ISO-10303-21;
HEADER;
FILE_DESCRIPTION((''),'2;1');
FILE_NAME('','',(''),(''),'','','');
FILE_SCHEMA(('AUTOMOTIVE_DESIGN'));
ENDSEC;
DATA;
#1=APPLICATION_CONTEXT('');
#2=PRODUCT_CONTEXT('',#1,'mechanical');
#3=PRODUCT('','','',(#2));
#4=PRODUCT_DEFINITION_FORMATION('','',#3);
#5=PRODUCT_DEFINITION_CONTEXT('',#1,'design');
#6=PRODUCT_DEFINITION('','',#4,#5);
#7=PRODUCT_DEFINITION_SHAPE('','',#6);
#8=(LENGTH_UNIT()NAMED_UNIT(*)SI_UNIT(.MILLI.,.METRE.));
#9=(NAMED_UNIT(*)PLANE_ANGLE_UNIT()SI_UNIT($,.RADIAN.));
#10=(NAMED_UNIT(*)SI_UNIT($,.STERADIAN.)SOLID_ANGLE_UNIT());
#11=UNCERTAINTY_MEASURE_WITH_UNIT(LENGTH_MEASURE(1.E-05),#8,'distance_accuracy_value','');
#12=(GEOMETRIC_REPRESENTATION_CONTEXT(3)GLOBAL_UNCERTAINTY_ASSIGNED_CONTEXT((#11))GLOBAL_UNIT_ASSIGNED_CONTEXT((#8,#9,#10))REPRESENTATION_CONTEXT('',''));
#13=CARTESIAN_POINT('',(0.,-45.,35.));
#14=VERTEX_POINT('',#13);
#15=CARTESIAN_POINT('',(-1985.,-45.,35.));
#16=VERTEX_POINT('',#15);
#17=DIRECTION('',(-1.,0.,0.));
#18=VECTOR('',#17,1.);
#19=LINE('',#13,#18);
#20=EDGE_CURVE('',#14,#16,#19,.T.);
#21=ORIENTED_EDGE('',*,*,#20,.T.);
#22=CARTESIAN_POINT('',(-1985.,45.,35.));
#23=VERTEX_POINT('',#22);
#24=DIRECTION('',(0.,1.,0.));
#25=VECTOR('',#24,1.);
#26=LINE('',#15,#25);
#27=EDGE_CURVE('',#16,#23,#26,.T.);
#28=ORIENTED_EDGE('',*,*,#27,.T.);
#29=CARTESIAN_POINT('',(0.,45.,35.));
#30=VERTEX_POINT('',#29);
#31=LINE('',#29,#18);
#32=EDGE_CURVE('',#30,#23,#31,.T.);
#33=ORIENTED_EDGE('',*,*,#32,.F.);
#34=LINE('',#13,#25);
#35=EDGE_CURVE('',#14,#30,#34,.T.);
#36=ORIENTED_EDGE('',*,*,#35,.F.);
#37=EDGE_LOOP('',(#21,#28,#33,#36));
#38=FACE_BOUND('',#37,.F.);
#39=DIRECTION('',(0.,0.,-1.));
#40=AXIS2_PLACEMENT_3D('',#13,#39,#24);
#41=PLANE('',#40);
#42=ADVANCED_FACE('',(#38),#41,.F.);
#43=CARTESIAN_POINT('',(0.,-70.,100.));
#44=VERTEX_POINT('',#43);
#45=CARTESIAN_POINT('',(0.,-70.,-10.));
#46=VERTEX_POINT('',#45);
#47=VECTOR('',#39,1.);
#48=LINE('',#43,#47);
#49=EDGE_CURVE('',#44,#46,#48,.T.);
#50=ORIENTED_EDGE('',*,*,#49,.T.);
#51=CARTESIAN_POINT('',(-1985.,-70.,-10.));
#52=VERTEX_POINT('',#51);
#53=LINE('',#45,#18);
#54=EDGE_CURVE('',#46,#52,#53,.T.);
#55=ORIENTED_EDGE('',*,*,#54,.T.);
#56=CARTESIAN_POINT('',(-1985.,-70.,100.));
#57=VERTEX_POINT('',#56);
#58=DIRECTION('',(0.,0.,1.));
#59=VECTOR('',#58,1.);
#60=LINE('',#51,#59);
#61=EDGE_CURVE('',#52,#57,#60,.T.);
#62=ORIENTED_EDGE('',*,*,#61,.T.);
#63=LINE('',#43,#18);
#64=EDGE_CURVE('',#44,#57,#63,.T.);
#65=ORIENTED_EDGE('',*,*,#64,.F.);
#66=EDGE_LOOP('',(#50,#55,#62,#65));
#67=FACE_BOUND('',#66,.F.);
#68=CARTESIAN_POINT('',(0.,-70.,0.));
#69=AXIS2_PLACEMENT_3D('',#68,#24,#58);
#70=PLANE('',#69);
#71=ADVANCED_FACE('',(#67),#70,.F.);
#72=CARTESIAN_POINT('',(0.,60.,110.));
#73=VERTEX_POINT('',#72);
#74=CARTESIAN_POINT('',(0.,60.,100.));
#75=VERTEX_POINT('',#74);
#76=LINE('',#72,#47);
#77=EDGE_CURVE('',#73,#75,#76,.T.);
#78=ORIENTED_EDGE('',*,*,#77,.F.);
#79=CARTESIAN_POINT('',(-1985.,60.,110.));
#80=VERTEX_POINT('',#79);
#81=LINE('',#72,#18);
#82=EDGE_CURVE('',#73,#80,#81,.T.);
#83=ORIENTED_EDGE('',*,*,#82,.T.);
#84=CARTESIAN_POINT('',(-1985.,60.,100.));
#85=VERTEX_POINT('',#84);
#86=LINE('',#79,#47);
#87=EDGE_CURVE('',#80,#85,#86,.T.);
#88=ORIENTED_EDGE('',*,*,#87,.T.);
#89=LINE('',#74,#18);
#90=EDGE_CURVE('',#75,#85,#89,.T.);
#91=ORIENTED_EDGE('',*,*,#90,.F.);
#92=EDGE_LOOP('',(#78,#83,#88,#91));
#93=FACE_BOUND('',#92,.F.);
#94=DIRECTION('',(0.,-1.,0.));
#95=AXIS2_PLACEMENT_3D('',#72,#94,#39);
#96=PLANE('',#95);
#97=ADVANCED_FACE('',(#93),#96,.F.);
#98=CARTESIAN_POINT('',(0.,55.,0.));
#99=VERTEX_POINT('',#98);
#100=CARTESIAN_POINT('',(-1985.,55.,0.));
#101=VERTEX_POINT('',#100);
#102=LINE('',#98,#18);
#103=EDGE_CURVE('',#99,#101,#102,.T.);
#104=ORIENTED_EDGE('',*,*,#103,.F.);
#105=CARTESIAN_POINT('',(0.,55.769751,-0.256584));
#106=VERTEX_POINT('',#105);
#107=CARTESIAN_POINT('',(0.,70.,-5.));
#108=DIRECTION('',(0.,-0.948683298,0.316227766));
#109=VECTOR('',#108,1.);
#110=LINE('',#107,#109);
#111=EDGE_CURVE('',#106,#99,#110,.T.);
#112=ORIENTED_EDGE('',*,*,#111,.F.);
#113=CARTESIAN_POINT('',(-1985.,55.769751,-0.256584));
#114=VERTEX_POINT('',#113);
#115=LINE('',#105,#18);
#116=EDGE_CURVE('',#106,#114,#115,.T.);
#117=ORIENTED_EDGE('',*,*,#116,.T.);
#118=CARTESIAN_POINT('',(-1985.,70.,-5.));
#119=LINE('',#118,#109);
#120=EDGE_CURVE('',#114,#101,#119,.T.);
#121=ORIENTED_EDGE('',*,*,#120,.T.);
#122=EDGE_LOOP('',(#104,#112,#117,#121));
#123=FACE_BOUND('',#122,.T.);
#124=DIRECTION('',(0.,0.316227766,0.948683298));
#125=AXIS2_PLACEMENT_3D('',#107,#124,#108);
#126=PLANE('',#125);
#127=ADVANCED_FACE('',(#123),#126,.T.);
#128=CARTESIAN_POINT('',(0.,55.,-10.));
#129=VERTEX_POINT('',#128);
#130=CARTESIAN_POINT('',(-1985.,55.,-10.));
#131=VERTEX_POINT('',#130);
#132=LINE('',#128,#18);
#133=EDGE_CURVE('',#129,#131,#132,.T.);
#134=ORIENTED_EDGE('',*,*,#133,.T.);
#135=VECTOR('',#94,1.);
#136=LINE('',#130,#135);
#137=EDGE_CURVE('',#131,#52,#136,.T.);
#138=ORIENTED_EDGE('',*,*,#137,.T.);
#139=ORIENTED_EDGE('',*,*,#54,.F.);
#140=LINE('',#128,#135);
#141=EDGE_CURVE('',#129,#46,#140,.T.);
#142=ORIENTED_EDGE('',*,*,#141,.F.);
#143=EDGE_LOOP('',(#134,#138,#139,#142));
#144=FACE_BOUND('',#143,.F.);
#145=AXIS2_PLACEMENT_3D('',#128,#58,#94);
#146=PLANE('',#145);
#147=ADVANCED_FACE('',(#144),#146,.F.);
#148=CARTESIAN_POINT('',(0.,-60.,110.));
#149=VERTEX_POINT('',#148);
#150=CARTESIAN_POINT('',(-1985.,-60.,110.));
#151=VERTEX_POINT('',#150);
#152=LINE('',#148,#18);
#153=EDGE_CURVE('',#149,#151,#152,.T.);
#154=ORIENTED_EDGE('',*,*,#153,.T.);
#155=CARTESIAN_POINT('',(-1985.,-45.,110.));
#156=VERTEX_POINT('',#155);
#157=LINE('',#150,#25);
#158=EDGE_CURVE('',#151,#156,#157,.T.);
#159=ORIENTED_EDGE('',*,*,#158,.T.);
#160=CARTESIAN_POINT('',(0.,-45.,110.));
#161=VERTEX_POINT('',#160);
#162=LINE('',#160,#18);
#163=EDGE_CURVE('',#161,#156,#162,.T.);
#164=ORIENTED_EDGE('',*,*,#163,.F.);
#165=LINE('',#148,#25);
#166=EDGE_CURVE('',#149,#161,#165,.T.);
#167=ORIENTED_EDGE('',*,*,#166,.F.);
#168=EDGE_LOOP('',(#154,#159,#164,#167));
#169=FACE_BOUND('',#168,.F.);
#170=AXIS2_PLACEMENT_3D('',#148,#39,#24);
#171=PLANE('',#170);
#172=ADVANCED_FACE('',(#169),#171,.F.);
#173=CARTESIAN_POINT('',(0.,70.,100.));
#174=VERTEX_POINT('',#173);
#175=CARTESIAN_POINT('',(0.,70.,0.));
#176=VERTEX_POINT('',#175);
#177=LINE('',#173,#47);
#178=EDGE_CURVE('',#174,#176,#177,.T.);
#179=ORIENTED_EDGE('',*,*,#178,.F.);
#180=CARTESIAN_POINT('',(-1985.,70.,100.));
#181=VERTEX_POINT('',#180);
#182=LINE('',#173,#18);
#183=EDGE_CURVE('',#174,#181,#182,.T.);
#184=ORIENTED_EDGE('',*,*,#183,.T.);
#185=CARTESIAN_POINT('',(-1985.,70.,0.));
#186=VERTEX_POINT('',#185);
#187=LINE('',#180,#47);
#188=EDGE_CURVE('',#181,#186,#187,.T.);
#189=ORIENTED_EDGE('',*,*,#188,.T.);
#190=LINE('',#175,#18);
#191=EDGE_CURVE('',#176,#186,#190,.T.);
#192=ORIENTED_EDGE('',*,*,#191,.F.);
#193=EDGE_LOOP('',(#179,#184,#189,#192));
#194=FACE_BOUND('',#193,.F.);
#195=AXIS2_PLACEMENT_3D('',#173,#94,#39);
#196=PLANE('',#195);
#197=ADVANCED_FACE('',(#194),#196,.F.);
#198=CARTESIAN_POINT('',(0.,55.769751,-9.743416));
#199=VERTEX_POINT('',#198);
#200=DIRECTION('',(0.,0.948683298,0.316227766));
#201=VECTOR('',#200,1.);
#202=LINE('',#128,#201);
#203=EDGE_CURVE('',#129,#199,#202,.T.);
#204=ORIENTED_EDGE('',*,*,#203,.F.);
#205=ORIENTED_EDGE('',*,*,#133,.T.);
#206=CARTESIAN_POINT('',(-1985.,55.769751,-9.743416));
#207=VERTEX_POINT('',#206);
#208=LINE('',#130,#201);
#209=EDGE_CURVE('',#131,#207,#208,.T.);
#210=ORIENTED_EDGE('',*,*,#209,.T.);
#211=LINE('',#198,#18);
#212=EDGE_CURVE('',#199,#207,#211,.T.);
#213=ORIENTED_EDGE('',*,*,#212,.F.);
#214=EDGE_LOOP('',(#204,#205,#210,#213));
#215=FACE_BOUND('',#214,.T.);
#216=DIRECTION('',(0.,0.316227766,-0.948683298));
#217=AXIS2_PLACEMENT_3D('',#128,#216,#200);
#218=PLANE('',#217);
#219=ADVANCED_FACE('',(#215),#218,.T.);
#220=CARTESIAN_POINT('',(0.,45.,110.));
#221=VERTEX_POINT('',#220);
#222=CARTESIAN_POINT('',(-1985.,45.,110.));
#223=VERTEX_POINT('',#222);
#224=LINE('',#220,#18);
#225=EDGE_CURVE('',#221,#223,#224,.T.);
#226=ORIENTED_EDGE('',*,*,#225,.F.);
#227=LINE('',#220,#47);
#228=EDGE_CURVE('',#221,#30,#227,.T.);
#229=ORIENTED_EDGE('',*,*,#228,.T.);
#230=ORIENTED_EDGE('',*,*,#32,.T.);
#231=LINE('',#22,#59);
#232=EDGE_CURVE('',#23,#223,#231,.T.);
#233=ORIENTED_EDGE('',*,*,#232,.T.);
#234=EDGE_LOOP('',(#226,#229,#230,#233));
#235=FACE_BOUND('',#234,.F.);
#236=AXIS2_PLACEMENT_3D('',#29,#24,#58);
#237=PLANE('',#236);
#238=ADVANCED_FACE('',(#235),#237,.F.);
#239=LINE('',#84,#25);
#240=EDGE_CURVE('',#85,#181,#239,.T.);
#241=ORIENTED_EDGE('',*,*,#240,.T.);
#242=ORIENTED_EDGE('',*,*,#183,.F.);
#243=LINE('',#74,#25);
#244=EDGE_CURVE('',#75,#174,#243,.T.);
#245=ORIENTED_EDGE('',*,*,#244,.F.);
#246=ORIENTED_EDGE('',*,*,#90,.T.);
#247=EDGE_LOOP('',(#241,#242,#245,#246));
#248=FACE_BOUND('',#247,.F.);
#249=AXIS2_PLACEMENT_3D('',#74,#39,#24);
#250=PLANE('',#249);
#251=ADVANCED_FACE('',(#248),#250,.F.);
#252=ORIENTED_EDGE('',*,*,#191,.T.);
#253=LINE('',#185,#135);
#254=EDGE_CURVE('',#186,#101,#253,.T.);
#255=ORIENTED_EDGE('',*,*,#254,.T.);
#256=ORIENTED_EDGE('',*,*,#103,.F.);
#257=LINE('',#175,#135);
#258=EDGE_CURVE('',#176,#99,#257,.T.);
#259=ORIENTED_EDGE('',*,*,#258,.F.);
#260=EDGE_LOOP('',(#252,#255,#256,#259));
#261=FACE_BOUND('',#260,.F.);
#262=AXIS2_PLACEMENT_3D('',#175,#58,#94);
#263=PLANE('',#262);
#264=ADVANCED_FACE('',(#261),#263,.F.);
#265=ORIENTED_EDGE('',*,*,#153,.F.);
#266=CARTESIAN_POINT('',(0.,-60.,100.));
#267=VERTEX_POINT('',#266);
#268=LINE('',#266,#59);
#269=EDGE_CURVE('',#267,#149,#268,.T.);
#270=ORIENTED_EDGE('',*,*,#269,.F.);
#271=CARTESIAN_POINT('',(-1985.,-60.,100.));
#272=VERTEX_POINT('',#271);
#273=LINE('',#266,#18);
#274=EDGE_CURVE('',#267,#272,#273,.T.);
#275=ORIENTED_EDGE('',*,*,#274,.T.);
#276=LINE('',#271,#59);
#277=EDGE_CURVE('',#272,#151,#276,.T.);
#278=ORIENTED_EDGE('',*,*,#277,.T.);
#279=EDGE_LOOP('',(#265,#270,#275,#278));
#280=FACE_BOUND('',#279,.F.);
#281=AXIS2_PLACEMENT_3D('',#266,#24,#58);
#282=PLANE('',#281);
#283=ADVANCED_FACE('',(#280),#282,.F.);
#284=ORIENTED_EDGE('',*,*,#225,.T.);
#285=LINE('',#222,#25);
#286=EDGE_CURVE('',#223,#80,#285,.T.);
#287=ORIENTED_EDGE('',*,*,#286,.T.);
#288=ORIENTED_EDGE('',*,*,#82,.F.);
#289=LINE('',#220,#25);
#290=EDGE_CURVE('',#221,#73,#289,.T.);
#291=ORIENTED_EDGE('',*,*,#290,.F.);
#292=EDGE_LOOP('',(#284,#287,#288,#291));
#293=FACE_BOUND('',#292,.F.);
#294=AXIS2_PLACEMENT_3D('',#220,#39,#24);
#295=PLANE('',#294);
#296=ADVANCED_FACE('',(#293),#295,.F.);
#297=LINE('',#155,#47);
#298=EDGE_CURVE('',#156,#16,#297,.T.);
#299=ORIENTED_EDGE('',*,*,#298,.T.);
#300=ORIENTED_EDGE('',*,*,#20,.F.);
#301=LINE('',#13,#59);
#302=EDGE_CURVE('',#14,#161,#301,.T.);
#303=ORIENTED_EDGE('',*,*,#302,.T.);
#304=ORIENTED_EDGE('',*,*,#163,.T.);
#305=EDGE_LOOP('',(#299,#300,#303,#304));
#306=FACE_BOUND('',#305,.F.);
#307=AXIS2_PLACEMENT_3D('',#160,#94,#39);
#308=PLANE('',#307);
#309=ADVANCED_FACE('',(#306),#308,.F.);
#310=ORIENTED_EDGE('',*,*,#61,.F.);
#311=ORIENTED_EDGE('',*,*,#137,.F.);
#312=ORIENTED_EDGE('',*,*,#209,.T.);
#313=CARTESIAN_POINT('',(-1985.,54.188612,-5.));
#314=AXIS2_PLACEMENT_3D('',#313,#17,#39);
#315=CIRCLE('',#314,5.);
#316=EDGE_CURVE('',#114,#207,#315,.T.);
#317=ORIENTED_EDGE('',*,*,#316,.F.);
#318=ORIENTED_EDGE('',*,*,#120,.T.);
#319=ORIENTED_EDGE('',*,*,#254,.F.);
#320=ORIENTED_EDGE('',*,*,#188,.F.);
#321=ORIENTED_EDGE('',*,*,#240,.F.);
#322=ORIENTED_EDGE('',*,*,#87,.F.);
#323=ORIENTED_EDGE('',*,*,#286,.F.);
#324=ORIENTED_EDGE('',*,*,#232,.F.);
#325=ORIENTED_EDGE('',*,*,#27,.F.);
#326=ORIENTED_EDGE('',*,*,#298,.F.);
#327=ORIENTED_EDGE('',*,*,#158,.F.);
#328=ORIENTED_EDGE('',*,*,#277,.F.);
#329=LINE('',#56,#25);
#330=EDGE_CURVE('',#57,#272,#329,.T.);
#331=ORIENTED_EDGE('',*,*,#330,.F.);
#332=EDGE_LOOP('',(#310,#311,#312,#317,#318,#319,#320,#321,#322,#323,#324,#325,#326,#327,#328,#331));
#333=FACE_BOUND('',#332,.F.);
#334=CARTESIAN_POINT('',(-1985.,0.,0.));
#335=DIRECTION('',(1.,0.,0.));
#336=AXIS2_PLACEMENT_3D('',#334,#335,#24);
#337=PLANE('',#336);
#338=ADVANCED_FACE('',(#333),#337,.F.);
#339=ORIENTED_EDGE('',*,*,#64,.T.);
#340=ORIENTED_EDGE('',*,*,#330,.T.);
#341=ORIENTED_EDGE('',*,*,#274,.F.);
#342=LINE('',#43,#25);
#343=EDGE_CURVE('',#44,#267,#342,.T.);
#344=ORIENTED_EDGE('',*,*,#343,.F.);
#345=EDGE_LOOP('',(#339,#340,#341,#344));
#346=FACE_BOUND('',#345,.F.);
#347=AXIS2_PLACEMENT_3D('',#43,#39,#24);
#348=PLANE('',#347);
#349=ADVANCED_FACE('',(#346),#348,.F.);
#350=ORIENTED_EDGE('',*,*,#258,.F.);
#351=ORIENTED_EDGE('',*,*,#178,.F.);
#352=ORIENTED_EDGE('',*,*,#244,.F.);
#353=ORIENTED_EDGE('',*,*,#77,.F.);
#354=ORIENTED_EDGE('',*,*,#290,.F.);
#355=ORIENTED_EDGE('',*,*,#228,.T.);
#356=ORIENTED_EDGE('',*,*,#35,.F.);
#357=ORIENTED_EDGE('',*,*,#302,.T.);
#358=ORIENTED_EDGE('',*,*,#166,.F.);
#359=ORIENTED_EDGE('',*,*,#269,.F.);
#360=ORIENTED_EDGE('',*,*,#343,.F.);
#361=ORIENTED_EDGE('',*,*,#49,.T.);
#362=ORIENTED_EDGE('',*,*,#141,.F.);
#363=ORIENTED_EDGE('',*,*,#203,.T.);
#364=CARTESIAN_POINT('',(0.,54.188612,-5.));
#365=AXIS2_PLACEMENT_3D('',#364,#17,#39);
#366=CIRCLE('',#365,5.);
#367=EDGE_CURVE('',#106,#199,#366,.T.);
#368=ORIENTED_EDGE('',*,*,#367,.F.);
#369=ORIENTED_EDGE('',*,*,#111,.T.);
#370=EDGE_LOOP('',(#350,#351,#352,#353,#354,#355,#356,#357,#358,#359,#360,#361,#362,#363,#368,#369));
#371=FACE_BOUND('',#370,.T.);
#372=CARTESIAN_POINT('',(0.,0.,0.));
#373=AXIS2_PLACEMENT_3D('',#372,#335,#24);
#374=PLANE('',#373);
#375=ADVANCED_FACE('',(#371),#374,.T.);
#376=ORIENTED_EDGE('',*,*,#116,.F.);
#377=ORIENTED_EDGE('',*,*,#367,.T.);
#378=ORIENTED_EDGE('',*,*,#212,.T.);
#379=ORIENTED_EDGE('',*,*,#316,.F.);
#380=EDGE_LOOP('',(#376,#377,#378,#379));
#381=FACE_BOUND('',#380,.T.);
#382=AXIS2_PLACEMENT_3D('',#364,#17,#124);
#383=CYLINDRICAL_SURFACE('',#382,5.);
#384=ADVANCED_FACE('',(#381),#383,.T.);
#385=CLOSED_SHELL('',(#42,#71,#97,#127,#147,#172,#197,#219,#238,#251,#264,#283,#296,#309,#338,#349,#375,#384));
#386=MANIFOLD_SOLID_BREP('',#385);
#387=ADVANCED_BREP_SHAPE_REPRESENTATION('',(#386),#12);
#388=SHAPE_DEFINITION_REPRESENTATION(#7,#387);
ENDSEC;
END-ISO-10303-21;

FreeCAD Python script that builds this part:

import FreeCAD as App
import Part
import Sketcher

V = App.Vector


def edges_at(feature, points):
    """Names of the edges that pass closest to the given points."""
    edges = feature.Shape.Edges
    near = lambda p: min(range(len(edges)), key=lambda i: edges[i].distToShape(Part.Vertex(*p))[0])
    return sorted({f"Edge{near(p) + 1}" for p in points})


def add_polygon(sketch, points):
    """Adds a closed chain of lines whose ends are joined by coincident constraints."""
    first, n = sketch.GeometryCount, len(points)
    for a, b in zip(points, points[1:] + points[:1]):
        sketch.addGeometry(Part.LineSegment(App.Vector(*a, 0), App.Vector(*b, 0)), False)
    for i in range(n):
        sketch.addConstraint(Sketcher.Constraint("Coincident", first + i, 2, first + (i + 1) % n, 1))

doc = App.newDocument("Part")
body = doc.addObject("PartDesign::Body", "Body")

sketch1 = doc.addObject("Sketcher::SketchObject", "Sketch")
body.addObject(sketch1)
sketch1.AttachmentSupport = (doc.YZ_Plane, [""])
sketch1.MapMode = "FlatFace"
add_polygon(sketch1, [(-70, 0), (70, 0), (70, 100), (60, 100), (60, 110), (45, 110), (45, 35), (-45, 35), (-45, 110), (-60, 110), (-60, 100), (-70, 100)])
sketch1.addConstraint([
    Sketcher.Constraint("Horizontal", 0),
    Sketcher.Constraint("Vertical", 1),
    Sketcher.Constraint("Horizontal", 2),
    Sketcher.Constraint("Vertical", 3),
    Sketcher.Constraint("Horizontal", 4),
    Sketcher.Constraint("Vertical", 5),
    Sketcher.Constraint("Horizontal", 6),
    Sketcher.Constraint("Vertical", 7),
    Sketcher.Constraint("Horizontal", 8),
    Sketcher.Constraint("Vertical", 9),
    Sketcher.Constraint("Horizontal", 10),
    Sketcher.Constraint("Vertical", 11),
    Sketcher.Constraint("Symmetric", 0, 2, 11, 2, -1, 1),
    Sketcher.Constraint("Symmetric", 4, 2, 7, 2, -2),
    Sketcher.Constraint("Symmetric", 2, 2, 9, 2, -2),
    Sketcher.Constraint("Equal", 10, 3),
    Sketcher.Constraint("DistanceX", 2, 2, 2, 1, 10.0),
    Sketcher.Constraint("DistanceX", 4, 2, 4, 1, 15.0),
    Sketcher.Constraint("DistanceX", 6, 2, 6, 1, 90.0),
    Sketcher.Constraint("DistanceY", -1, 1, 3, 2, 110.0),
    Sketcher.Constraint("DistanceY", -1, 1, 5, 2, 35.0),
])
pad1 = doc.addObject("PartDesign::Pad", "Pad")
body.addObject(pad1)
pad1.Profile = sketch1
pad1.Length = 1985
pad1.Reversed = True

sketch2 = doc.addObject("Sketcher::SketchObject", "Sketch001")
body.addObject(sketch2)
sketch2.AttachmentSupport = (doc.YZ_Plane, [""])
sketch2.MapMode = "FlatFace"
add_polygon(sketch2, [(-70, 0), (-70, -10), (55, -10), (70, -5), (55, 0)])
sketch2.addConstraint([
    Sketcher.Constraint("Vertical", 0),
    Sketcher.Constraint("Horizontal", 1),
    Sketcher.Constraint("Horizontal", 4),
    Sketcher.Constraint("PointOnObject", 3, 2, -1),
    Sketcher.Constraint("Vertical", 1, 2, 3, 2),
    Sketcher.Constraint("Equal", 2, 3),
    Sketcher.Constraint("DistanceY", 0, 2, 0, 1, 10.0),
    Sketcher.Constraint("DistanceX", 1, 2, 2, 2, 15.0),
    Sketcher.Constraint("DistanceX", 1, 1, 1, 2, 125.0),
    Sketcher.Constraint("DistanceX", 0, 2, -1, 1, 70.0),
])
pad2 = doc.addObject("PartDesign::Pad", "Pad001")
body.addObject(pad2)
pad2.Profile = sketch2
pad2.Length = 1985
pad2.Reversed = True
doc.recompute()

fillet = doc.addObject("PartDesign::Fillet", "Fillet")
body.addObject(fillet)
fillet.Base = (pad2, edges_at(pad2, [(-992.5, 70, -5)]))
fillet.Radius = 5

doc.recompute()
